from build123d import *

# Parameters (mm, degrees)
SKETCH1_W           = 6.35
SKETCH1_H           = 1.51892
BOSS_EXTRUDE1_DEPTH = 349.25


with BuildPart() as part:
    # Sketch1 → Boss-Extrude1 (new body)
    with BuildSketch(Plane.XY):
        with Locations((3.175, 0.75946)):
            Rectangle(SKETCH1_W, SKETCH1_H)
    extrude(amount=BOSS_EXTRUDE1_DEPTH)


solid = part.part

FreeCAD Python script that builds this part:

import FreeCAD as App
import Part
import Sketcher

V = App.Vector
Q = App.Units.Quantity

doc = App.newDocument("Part")
body = doc.addObject("PartDesign::Body", "Body")

sketch1 = doc.addObject("Sketcher::SketchObject", "Sketch")
body.addObject(sketch1)
sketch1.AttachmentSupport = (doc.XY_Plane, [""])
sketch1.MapMode = "FlatFace"
sketch1.addGeometry([
    Part.LineSegment(V(0, 1.5, 0), V(0, 0, 0)),
    Part.LineSegment(V(0, 0, 0), V(6.3, 0, 0)),
    Part.LineSegment(V(6.3, 0, 0), V(6.3, 1.5, 0)),
    Part.LineSegment(V(6.3, 1.5, 0), V(0, 1.5, 0)),
], False)
sketch1.addConstraint([
    Sketcher.Constraint("Coincident", 0, 2, 1, 1),
    Sketcher.Constraint("Coincident", 1, 2, 2, 1),
    Sketcher.Constraint("Coincident", 2, 2, 3, 1),
    Sketcher.Constraint("Coincident", 3, 2, 0, 1),
    Sketcher.Constraint("Vertical", 0),
    Sketcher.Constraint("Horizontal", 1),
    Sketcher.Constraint("Vertical", 2),
    Sketcher.Constraint("Horizontal", 3),
    Sketcher.Constraint("Coincident", 0, 2, -1, 1),
    Sketcher.Constraint("DistanceX", 1, 1, 1, 2, Q("0.25 in")),
    Sketcher.Constraint("DistanceY", 0, 2, 0, 1, Q("0.0598 in")),
])
pad1 = doc.addObject("PartDesign::Pad", "Pad")
body.addObject(pad1)
pad1.Profile = sketch1
pad1.Length = Q("13.75 in")

doc.recompute()
